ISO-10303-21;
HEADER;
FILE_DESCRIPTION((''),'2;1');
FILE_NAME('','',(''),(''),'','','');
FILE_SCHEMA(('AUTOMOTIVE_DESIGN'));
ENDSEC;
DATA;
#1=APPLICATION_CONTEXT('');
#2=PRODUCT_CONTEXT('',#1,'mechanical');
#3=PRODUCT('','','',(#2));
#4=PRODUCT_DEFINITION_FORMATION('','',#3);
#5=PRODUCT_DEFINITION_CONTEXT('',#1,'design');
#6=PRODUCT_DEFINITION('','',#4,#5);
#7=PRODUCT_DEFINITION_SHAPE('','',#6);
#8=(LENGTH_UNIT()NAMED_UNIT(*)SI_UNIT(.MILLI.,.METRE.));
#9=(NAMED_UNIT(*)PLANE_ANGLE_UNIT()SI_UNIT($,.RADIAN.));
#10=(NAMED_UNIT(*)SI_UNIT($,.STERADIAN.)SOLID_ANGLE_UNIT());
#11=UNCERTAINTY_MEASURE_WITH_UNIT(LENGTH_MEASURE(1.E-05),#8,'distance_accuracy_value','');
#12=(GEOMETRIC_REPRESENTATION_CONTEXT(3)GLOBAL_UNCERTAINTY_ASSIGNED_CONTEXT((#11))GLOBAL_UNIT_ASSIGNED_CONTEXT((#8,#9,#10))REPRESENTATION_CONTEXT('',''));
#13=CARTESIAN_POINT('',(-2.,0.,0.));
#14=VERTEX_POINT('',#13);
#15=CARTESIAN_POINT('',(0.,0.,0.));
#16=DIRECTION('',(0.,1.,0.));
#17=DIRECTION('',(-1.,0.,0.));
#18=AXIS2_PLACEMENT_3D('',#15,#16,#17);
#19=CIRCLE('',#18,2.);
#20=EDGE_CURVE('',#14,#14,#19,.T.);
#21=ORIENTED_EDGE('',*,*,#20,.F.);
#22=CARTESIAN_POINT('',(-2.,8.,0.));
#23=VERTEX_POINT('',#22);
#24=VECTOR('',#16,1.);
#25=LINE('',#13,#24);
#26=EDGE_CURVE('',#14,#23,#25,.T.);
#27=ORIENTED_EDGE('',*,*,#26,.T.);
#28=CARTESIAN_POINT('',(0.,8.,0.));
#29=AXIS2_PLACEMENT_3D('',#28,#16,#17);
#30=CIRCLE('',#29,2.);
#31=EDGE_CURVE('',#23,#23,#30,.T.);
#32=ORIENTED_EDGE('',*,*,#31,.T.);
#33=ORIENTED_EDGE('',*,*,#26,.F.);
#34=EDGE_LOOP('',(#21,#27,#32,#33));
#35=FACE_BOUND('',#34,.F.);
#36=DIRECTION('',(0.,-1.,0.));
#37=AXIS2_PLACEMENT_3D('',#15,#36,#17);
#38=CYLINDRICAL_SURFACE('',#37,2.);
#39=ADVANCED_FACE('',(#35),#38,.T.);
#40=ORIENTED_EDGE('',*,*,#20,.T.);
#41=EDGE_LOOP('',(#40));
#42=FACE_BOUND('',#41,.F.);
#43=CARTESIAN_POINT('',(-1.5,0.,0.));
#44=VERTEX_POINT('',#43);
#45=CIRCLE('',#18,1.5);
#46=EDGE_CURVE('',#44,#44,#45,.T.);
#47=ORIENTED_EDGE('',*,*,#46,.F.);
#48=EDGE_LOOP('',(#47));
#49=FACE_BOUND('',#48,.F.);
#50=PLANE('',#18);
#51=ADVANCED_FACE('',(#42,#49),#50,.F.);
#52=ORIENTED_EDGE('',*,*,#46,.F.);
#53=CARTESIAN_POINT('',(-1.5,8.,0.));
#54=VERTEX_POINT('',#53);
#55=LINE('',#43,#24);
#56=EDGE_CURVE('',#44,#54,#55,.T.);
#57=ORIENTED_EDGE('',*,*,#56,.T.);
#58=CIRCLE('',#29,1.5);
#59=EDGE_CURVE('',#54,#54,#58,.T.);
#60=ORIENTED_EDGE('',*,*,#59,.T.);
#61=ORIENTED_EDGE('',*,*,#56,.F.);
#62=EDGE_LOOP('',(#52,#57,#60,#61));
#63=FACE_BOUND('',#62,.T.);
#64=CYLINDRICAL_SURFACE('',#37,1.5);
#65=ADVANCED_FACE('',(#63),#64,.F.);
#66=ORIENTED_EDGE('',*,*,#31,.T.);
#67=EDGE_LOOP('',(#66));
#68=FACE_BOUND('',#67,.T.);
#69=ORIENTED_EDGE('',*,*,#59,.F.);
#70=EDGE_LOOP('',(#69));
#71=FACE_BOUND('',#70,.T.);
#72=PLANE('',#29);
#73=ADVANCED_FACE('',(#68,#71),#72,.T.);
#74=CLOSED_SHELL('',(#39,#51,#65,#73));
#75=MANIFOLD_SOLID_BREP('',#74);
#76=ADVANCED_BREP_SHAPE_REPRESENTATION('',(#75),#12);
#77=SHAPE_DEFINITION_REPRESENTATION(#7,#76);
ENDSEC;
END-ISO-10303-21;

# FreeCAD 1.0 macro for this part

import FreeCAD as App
import Part
import Sketcher

V = App.Vector
Q = App.Units.Quantity

doc = App.newDocument("Part")
body = doc.addObject("PartDesign::Body", "Body")

# Sketch on XZ plane
sketch1 = body.newObject("Sketcher::SketchObject", "Sketch")
sketch1.AttachmentSupport = (doc.getObject("XZ_Plane"), [""])
sketch1.MapMode = "FlatFace"
sketch1.addGeometry(Part.Circle(V(0, 0, 0), V(0, 0, 1), 2), False)
sketch1.addGeometry(Part.Circle(V(0, 0, 0), V(0, 0, 1), 1.5), False)
sketch1.addConstraint(Sketcher.Constraint("Coincident", 0, 3, -1, 1))
sketch1.addConstraint(Sketcher.Constraint("Coincident", 1, 3, -1, 1))
sketch1.addConstraint(Sketcher.Constraint("Diameter", 0, Q("4 mm")))
sketch1.addConstraint(Sketcher.Constraint("Diameter", 1, Q("3 mm")))
pad1 = body.newObject("PartDesign::Pad", "Pad")
pad1.Profile = sketch1
pad1.Length = 8
pad1.Reversed = True

doc.recompute()
